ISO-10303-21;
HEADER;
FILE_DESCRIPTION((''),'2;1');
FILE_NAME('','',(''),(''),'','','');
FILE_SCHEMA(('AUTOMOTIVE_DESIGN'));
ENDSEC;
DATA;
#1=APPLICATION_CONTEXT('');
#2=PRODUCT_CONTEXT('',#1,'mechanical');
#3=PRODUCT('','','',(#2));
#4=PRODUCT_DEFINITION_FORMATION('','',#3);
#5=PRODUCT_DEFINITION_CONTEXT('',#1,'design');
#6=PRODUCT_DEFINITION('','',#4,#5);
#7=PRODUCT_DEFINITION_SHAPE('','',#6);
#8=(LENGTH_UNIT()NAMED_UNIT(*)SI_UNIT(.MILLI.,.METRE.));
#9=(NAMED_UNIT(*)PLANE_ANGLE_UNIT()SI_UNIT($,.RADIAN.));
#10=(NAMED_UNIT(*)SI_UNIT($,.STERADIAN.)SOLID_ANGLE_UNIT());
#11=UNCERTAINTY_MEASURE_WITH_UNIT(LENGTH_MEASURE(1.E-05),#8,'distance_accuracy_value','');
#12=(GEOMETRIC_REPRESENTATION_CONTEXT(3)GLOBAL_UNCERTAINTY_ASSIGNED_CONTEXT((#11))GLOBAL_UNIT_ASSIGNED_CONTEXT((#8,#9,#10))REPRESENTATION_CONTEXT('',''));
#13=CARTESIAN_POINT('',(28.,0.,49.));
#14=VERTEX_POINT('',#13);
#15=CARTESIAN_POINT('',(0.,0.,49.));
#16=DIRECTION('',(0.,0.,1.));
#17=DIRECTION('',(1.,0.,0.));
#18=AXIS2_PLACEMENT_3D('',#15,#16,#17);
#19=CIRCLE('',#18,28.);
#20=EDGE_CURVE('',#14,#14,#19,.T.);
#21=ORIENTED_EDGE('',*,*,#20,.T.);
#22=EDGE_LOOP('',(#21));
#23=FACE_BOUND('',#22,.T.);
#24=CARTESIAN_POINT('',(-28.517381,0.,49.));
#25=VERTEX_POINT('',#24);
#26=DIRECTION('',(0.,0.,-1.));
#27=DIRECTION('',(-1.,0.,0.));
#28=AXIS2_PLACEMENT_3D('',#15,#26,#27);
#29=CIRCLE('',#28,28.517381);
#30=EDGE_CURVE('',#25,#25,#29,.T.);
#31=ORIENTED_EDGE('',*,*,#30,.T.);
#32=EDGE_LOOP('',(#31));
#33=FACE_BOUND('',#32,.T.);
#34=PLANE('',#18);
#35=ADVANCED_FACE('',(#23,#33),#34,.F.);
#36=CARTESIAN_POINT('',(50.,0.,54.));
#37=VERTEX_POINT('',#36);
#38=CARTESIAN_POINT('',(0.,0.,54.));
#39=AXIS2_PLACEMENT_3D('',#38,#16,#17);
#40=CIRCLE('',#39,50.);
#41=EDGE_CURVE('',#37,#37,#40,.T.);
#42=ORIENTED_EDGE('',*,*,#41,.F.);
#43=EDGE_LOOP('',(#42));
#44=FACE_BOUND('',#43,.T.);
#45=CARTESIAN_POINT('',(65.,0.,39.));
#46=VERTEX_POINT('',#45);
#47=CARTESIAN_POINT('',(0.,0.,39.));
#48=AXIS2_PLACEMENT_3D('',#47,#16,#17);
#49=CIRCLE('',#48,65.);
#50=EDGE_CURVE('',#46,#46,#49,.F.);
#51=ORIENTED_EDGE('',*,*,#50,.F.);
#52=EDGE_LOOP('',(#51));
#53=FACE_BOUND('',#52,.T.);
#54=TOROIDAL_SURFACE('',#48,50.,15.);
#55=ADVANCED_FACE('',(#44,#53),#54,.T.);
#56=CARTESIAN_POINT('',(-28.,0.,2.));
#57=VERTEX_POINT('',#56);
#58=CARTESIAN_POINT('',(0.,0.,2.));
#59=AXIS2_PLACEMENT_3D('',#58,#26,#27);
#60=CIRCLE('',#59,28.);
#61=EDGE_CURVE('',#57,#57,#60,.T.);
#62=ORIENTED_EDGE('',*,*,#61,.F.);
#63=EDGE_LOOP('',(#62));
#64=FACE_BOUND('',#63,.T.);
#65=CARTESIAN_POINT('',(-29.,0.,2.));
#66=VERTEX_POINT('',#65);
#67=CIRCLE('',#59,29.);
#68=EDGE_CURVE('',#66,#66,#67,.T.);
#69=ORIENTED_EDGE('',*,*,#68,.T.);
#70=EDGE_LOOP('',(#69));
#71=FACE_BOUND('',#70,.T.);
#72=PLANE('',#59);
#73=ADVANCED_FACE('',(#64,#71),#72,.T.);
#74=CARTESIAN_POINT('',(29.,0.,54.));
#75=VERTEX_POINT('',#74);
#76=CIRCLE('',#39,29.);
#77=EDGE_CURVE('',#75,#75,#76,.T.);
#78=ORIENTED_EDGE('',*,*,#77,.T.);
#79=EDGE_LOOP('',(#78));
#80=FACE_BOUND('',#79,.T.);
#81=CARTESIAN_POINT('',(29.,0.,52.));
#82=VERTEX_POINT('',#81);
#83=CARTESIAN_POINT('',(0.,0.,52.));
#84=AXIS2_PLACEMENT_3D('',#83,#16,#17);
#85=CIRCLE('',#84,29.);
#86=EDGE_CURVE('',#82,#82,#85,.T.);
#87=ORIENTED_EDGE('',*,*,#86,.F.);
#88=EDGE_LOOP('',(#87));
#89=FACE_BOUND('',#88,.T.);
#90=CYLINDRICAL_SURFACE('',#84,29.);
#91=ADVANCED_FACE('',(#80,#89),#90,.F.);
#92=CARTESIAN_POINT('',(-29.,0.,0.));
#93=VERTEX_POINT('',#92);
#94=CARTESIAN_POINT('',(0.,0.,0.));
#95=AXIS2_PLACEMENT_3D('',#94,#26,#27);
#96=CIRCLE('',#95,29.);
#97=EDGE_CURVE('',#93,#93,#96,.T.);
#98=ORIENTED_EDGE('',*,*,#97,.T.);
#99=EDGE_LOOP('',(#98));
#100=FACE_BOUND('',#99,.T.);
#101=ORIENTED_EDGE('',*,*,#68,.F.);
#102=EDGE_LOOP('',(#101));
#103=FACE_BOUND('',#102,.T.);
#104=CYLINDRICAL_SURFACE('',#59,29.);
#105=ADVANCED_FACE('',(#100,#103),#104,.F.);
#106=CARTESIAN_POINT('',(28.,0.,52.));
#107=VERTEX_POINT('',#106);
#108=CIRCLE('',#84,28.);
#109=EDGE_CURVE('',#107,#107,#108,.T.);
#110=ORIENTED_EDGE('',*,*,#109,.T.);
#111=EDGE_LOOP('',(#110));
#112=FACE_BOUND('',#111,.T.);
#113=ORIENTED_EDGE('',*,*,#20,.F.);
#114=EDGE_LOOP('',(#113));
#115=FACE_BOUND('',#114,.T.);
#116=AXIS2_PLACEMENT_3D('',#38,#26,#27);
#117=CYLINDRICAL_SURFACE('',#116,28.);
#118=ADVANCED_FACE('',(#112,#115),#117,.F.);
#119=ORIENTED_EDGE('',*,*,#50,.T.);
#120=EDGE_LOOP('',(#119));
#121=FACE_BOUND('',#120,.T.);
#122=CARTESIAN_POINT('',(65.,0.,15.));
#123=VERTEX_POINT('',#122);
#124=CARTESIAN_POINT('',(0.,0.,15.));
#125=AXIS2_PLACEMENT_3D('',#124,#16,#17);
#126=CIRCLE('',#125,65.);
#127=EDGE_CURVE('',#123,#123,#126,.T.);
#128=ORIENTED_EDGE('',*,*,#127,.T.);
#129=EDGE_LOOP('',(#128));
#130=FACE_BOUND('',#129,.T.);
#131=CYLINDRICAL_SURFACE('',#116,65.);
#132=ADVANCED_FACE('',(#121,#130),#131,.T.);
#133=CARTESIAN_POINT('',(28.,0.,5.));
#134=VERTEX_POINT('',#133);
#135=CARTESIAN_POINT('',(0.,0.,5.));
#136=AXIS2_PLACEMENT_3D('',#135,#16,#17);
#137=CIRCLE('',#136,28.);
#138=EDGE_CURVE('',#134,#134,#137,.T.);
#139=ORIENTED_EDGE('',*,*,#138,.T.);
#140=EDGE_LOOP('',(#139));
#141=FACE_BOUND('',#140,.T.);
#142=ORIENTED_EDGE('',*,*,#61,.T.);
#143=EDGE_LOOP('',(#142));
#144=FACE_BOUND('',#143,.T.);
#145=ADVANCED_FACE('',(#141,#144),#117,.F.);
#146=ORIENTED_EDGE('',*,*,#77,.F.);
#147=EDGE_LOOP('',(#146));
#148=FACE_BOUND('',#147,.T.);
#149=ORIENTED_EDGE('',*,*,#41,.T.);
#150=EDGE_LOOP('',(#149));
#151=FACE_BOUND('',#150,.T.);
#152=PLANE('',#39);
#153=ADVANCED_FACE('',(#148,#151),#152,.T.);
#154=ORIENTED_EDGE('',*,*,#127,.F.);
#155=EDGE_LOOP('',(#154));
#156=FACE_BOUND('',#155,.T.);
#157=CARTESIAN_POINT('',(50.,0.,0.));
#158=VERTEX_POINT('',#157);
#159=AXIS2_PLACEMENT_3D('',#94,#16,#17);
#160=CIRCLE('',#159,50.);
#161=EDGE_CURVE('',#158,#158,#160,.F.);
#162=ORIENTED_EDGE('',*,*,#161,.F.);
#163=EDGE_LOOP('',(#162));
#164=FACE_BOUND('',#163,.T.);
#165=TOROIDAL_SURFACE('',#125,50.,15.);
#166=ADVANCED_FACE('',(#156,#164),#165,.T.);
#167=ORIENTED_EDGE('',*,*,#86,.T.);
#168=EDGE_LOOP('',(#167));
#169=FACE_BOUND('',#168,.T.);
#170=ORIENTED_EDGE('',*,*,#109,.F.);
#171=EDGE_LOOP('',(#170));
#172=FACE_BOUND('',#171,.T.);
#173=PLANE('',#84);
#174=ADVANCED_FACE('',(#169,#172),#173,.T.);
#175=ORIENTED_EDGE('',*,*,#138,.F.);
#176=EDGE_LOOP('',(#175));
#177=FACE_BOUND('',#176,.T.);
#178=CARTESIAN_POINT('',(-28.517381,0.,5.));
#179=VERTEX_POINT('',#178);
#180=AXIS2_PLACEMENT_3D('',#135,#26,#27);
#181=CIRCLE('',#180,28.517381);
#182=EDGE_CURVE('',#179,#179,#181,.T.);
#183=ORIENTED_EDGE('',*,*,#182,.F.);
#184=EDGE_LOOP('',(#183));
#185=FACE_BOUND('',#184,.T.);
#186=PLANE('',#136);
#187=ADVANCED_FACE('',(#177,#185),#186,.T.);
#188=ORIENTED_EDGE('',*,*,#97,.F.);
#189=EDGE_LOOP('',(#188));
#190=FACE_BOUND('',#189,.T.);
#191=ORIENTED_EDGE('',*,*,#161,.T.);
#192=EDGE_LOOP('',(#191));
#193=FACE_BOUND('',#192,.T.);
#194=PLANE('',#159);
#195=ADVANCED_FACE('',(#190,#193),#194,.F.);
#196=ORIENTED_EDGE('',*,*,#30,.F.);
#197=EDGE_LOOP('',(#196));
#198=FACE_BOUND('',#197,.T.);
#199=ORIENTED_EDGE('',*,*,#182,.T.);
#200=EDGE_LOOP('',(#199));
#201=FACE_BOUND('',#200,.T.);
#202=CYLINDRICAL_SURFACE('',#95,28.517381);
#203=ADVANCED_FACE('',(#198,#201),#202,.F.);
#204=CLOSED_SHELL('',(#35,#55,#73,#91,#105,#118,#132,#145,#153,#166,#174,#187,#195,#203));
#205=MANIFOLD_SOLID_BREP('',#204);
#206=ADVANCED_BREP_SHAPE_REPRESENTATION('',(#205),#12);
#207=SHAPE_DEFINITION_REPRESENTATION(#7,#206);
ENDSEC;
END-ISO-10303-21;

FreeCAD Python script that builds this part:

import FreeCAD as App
import Part
import Sketcher

V = App.Vector


def edges_at(feature, points):
    """Names of the edges that pass closest to the given points."""
    edges = feature.Shape.Edges
    near = lambda p: min(range(len(edges)), key=lambda i: edges[i].distToShape(Part.Vertex(*p))[0])
    return sorted({f"Edge{near(p) + 1}" for p in points})


def add_polygon(sketch, points):
    """Adds a closed chain of lines whose ends are joined by coincident constraints."""
    first, n = sketch.GeometryCount, len(points)
    for a, b in zip(points, points[1:] + points[:1]):
        sketch.addGeometry(Part.LineSegment(App.Vector(*a, 0), App.Vector(*b, 0)), False)
    for i in range(n):
        sketch.addConstraint(Sketcher.Constraint("Coincident", first + i, 2, first + (i + 1) % n, 1))

doc = App.newDocument("Part")
body = doc.addObject("PartDesign::Body", "Body")

# Sketch on XY plane
sketch1 = doc.addObject("Sketcher::SketchObject", "Sketch")
body.addObject(sketch1)
sketch1.AttachmentSupport = (doc.XY_Plane, [""])
sketch1.MapMode = "FlatFace"
sketch1.addGeometry(Part.Circle(V(0, 0, 0), V(0, 0, 1), 65), False)
sketch1.addGeometry(Part.Circle(V(0, 0, 0), V(0, 0, 1), 28), False)
sketch1.addConstraint(Sketcher.Constraint("Coincident", 0, 3, -1, 1))
sketch1.addConstraint(Sketcher.Constraint("Coincident", 1, 3, -1, 1))
sketch1.addConstraint(Sketcher.Constraint("Diameter", 0, 130.0))
sketch1.addConstraint(Sketcher.Constraint("Diameter", 1, 56.0))
pad1 = doc.addObject("PartDesign::Pad", "Pad")
body.addObject(pad1)
pad1.Profile = sketch1
pad1.Length = 54

# Sketch on XY plane
sketch2 = doc.addObject("Sketcher::SketchObject", "Sketch001")
body.addObject(sketch2)
sketch2.AttachmentSupport = (doc.XY_Plane, [""])
sketch2.MapMode = "FlatFace"
sketch2.addGeometry(Part.Circle(V(0, 0, 0), V(0, 0, 1), 29), False)
sketch2.addConstraint(Sketcher.Constraint("Coincident", 0, 3, -1, 1))
sketch2.addConstraint(Sketcher.Constraint("Diameter", 0, 58.0))
pocket1 = doc.addObject("PartDesign::Pocket", "Pocket")
body.addObject(pocket1)
pocket1.Profile = sketch2
pocket1.Length = 2
pocket1.Reversed = True

# Sketch on XY plane
sketch3 = doc.addObject("Sketcher::SketchObject", "Sketch002")
body.addObject(sketch3)
sketch3.AttachmentSupport = (doc.XY_Plane, [""])
sketch3.MapMode = "FlatFace"
sketch3.AttachmentOffset = App.Placement(V(0, 0, 52), App.Rotation())
sketch3.addGeometry(Part.Circle(V(0, 0, 0), V(0, 0, 1), 29), False)
sketch3.addConstraint(Sketcher.Constraint("Coincident", 0, 3, -1, 1))
sketch3.addConstraint(Sketcher.Constraint("Diameter", 0, 58.0))
pocket2 = doc.addObject("PartDesign::Pocket", "Pocket001")
body.addObject(pocket2)
pocket2.Profile = sketch3
pocket2.Length = 2
pocket2.Reversed = True

# Sketch on XZ plane
sketch4 = doc.addObject("Sketcher::SketchObject", "Sketch003")
body.addObject(sketch4)
sketch4.AttachmentSupport = (doc.XZ_Plane, [""])
sketch4.MapMode = "FlatFace"
add_polygon(sketch4, [(-28.5, 5), (-28.5, 49), (-27.5, 49), (-27.5, 5)])  # lines 0-3
sketch4.addConstraint(Sketcher.Constraint("Vertical", 0))
sketch4.addConstraint(Sketcher.Constraint("Horizontal", 1))
sketch4.addConstraint(Sketcher.Constraint("Vertical", 2))
sketch4.addConstraint(Sketcher.Constraint("Horizontal", 3))
sketch4.addConstraint(Sketcher.Constraint("DistanceX", 1, 1, 1, 2, 1.0))
sketch4.addConstraint(Sketcher.Constraint("DistanceY", 0, 1, 0, 2, 44.0))
sketch4.addConstraint(Sketcher.Constraint("DistanceY", -1, 1, 0, 2, 49.0))
sketch4.addConstraint(Sketcher.Constraint("DistanceX", 0, 2, -1, 1, 28.517381))
groove = doc.addObject("PartDesign::Groove", "Groove")
body.addObject(groove)
groove.Profile = sketch4
groove.ReferenceAxis = (sketch4, ["V_Axis"])
groove.Angle = 360
doc.recompute()

fillet = doc.addObject("PartDesign::Fillet", "Fillet")
body.addObject(fillet)
fillet.Base = (groove, edges_at(groove, [(-65, 0, 0), (-65, 0, 54)]))
fillet.Radius = 15

doc.recompute()
